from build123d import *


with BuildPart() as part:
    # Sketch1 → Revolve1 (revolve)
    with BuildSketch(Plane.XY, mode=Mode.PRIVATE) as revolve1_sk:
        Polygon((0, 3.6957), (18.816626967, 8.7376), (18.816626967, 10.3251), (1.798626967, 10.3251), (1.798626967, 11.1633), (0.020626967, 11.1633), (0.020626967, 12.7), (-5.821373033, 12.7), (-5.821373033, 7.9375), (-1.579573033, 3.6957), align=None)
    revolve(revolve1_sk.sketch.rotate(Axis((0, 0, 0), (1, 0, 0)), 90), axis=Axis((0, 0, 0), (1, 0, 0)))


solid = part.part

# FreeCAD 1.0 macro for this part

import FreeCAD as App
import Part
import Sketcher

V = App.Vector
Q = App.Units.Quantity

doc = App.newDocument("Part")
params = doc.addObject("Spreadsheet::Sheet", "Params")
for row, (alias, value) in enumerate([
    ("sketch1_width", "0.67 in"),
    ("sketch1_width2", "0.07 in"),
    ("sketch1_width3", "0.23 in"),
    ("sketch1_height", "0.0625 in"),
    ("sketch1_height2", "0.033 in"),
    ("revolution_angle", "360 deg"),
], start=1):
    params.set(f"A{row}", alias)
    params.set(f"B{row}", "=" + value)
    params.setAlias(f"B{row}", alias)

body = doc.addObject("PartDesign::Body", "Body")

sketch1 = body.newObject("Sketcher::SketchObject", "Sketch")
sketch1.AttachmentSupport = (doc.getObject("XY_Plane"), [""])
sketch1.MapMode = "FlatFace"
sketch1.addGeometry([
    Part.LineSegment(V(0, 3.7, 0), V(18.8, 8.7, 0)),
    Part.LineSegment(V(18.8, 8.7, 0), V(18.8, 10.3, 0)),
    Part.LineSegment(V(18.8, 10.3, 0), V(1.8, 10.3, 0)),
    Part.LineSegment(V(1.8, 10.3, 0), V(1.8, 11.2, 0)),
    Part.LineSegment(V(1.8, 11.2, 0), V(0, 11.2, 0)),
    Part.LineSegment(V(0, 11.2, 0), V(0, 12.7, 0)),
    Part.LineSegment(V(0, 12.7, 0), V(-5.8, 12.7, 0)),
    Part.LineSegment(V(-5.8, 12.7, 0), V(-5.8, 7.9, 0)),
    Part.LineSegment(V(-5.8, 7.9, 0), V(-1.6, 3.7, 0)),
    Part.LineSegment(V(-1.6, 3.7, 0), V(0, 3.7, 0)),
], False)
sketch1.addConstraint([
    Sketcher.Constraint("Coincident", 0, 2, 1, 1),
    Sketcher.Constraint("Coincident", 1, 2, 2, 1),
    Sketcher.Constraint("Coincident", 2, 2, 3, 1),
    Sketcher.Constraint("Coincident", 3, 2, 4, 1),
    Sketcher.Constraint("Coincident", 4, 2, 5, 1),
    Sketcher.Constraint("Coincident", 5, 2, 6, 1),
    Sketcher.Constraint("Coincident", 6, 2, 7, 1),
    Sketcher.Constraint("Coincident", 7, 2, 8, 1),
    Sketcher.Constraint("Coincident", 8, 2, 9, 1),
    Sketcher.Constraint("Coincident", 9, 2, 0, 1),
    Sketcher.Constraint("Vertical", 1),
    Sketcher.Constraint("Horizontal", 2),
    Sketcher.Constraint("Vertical", 3),
    Sketcher.Constraint("Horizontal", 4),
    Sketcher.Constraint("Vertical", 5),
    Sketcher.Constraint("Horizontal", 6),
    Sketcher.Constraint("Vertical", 7),
    Sketcher.Constraint("Horizontal", 9),
    Sketcher.Constraint("PointOnObject", 9, 2, -2),
    Sketcher.Constraint("Angle", 0, Q("15 deg")),
    Sketcher.Constraint("Angle", 8, Q("-45 deg")),
    Sketcher.Constraint("DistanceX", 2, 2, 2, 1, Q("0.67 in")),
    Sketcher.Constraint("DistanceX", 4, 2, 4, 1, Q("0.07 in")),
    Sketcher.Constraint("DistanceX", 6, 2, 6, 1, Q("0.23 in")),
    Sketcher.Constraint("DistanceY", -1, 1, 5, 2, Q("0.5 in")),
    Sketcher.Constraint("DistanceY", 1, 1, 1, 2, Q("0.0625 in")),
    Sketcher.Constraint("DistanceY", 3, 1, 3, 2, Q("0.033 in")),
    Sketcher.Constraint("DistanceY", 7, 2, 7, 1, Q("0.1875 in")),
    Sketcher.Constraint("DistanceY", 5, 1, 5, 2, Q("0.0605 in")),
    Sketcher.Constraint("DistanceX", 7, 2, 8, 2, Q("0.167 in")),
])
sketch1.setExpression("Constraints[21]", "Params.sketch1_width")
sketch1.setExpression("Constraints[22]", "Params.sketch1_width2")
sketch1.setExpression("Constraints[23]", "Params.sketch1_width3")
sketch1.setExpression("Constraints[25]", "Params.sketch1_height")
sketch1.setExpression("Constraints[26]", "Params.sketch1_height2")
revolution = body.newObject("PartDesign::Revolution", "Revolution")
revolution.Profile = sketch1
revolution.ReferenceAxis = (sketch1, ["H_Axis"])
revolution.setExpression("Angle", "Params.revolution_angle")

doc.recompute()
